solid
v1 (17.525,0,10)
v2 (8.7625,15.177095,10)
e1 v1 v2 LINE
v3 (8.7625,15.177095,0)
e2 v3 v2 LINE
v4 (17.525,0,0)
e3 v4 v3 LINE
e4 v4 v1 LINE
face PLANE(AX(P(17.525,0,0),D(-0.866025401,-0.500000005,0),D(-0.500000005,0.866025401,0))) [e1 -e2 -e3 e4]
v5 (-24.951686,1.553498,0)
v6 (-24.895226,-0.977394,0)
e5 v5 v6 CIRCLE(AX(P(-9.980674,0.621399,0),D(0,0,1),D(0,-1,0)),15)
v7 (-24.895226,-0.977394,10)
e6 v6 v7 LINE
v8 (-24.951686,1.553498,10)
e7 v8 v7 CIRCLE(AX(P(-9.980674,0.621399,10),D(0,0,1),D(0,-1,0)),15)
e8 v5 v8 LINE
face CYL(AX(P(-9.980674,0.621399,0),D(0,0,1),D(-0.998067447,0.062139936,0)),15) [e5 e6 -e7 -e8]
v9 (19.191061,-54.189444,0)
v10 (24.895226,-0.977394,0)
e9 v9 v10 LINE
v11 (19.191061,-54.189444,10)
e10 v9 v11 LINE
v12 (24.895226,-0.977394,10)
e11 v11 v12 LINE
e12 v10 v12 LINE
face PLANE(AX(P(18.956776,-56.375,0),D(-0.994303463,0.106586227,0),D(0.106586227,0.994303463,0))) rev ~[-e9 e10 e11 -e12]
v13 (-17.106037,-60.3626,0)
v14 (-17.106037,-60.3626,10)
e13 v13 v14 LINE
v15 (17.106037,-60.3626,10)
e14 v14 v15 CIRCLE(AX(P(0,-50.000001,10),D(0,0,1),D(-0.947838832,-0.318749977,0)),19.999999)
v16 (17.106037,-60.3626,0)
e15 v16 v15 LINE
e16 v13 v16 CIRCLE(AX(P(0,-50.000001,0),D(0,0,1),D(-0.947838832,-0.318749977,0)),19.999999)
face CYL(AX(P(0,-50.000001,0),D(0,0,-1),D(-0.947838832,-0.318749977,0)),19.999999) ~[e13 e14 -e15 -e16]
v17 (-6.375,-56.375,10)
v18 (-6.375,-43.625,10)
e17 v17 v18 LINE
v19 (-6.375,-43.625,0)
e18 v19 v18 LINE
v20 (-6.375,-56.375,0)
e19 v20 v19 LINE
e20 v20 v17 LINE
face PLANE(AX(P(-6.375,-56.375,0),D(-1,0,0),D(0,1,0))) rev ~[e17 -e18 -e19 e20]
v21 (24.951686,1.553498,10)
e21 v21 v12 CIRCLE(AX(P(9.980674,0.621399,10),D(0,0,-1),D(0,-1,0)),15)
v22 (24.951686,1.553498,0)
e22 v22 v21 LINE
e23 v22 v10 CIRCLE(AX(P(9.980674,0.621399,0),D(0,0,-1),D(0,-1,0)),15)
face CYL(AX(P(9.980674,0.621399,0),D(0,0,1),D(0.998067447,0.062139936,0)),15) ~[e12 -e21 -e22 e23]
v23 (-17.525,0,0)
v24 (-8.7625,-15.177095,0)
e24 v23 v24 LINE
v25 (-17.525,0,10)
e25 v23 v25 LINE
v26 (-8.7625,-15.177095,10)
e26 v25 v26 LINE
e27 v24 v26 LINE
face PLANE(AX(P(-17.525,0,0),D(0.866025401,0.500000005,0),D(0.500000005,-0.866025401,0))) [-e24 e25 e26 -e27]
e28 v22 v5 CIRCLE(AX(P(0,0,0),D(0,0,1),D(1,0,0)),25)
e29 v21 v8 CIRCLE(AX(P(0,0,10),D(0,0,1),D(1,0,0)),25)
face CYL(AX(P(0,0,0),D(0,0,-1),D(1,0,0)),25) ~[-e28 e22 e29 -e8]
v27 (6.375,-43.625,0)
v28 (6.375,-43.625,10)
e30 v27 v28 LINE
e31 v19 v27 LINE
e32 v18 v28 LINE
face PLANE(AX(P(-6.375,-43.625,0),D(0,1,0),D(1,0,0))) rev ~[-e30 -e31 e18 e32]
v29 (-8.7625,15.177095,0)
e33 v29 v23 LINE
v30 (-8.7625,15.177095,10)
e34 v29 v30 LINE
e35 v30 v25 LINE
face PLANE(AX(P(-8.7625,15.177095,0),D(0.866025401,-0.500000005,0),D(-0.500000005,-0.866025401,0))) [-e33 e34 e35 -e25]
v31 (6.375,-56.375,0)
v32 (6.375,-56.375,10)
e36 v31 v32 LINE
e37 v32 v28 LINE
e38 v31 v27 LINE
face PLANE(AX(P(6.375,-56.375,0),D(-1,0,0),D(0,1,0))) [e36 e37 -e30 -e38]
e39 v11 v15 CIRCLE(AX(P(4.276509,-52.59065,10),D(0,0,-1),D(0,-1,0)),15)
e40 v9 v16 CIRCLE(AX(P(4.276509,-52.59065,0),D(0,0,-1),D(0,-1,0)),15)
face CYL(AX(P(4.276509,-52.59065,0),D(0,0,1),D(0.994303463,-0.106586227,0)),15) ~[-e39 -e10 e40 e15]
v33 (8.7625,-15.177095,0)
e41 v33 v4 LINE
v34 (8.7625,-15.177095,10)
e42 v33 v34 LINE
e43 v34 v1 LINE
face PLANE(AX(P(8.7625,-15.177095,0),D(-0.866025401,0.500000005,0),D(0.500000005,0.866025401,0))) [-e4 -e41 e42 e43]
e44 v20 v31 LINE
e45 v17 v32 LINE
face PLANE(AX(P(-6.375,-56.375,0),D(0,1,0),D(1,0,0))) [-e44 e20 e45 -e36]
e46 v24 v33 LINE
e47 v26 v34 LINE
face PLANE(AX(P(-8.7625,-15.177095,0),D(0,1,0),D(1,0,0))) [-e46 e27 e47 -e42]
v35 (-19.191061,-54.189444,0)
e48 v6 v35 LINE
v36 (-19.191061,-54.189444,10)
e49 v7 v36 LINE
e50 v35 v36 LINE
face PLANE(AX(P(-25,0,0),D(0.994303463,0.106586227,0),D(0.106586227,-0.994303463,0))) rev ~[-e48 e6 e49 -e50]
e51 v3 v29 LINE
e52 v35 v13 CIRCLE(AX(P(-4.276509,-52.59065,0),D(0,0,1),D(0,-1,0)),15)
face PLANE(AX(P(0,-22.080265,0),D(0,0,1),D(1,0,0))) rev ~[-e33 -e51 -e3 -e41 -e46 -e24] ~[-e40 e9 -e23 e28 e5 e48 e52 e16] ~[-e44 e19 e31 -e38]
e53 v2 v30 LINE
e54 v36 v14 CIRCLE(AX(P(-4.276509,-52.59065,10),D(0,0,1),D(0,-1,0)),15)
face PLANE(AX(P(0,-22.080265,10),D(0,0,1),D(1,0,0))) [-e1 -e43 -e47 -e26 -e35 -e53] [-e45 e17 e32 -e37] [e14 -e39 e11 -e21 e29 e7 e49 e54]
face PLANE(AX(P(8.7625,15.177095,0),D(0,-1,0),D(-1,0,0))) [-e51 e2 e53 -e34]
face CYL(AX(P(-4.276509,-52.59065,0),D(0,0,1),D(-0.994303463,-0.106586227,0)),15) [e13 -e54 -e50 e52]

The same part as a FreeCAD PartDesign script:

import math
import FreeCAD as App
import Part
import Sketcher
from FreeCAD import Vector
Q = App.Units.Quantity


def edges_at(feature, points):
    """Names of the edges that pass closest to the given points."""
    edges = feature.Shape.Edges
    near = lambda p: min(range(len(edges)), key=lambda i: edges[i].distToShape(Part.Vertex(*p))[0])
    return sorted({f"Edge{near(p) + 1}" for p in points})

doc = App.newDocument("Part")
body = doc.addObject("PartDesign::Body", "Body")

# Sketch on XY plane
sketch1 = body.newObject("Sketcher::SketchObject", "Sketch")
sketch1.AttachmentSupport = (doc.getObject("XY_Plane"), [""])
sketch1.MapMode = "FlatFace"
sketch1.addGeometry([
    Part.ArcOfCircle(Part.Circle(Vector(0, 0, 0), Vector(0, 0, 1), 25), math.radians(0), math.radians(180)),  # 0
    Part.LineSegment(Vector(-25, 0, 0), Vector(-18.956776, -56.375, 0)),  # 1
    Part.ArcOfCircle(Part.Circle(Vector(0, -50.000001, 0), Vector(0, 0, 1), 19.999999), math.radians(-161.412654), math.radians(-18.587346)),  # 2
    Part.LineSegment(Vector(18.956776, -56.375, 0), Vector(25, 0, 0)),  # 3
    Part.LineSegment(Vector(6.375, -56.375, 0), Vector(-6.375, -56.375, 0)),  # 4
    Part.LineSegment(Vector(-6.375, -56.375, 0), Vector(-6.375, -43.625, 0)),  # 5
    Part.LineSegment(Vector(-6.375, -43.625, 0), Vector(6.375, -43.625, 0)),  # 6
    Part.LineSegment(Vector(6.375, -43.625, 0), Vector(6.375, -56.375, 0)),  # 7
    Part.LineSegment(Vector(-8.7625, -15.177095, 0), Vector(-17.525, 0, 0)),  # 8
    Part.LineSegment(Vector(-17.525, 0, 0), Vector(-8.7625, 15.177095, 0)),  # 9
    Part.LineSegment(Vector(-8.7625, 15.177095, 0), Vector(8.7625, 15.177095, 0)),  # 10
    Part.LineSegment(Vector(8.7625, 15.177095, 0), Vector(17.525, 0, 0)),  # 11
    Part.LineSegment(Vector(17.525, 0, 0), Vector(8.7625, -15.177095, 0)),  # 12
    Part.LineSegment(Vector(8.7625, -15.177095, 0), Vector(-8.7625, -15.177095, 0)),  # 13
], False)
sketch1.addConstraint([
    Sketcher.Constraint("Coincident", 0, 2, 1, 1),
    Sketcher.Constraint("Coincident", 1, 2, 2, 1),
    Sketcher.Constraint("Coincident", 2, 2, 3, 1),
    Sketcher.Constraint("Coincident", 3, 2, 0, 1),
    Sketcher.Constraint("Coincident", 4, 2, 5, 1),
    Sketcher.Constraint("Coincident", 5, 2, 6, 1),
    Sketcher.Constraint("Coincident", 6, 2, 7, 1),
    Sketcher.Constraint("Coincident", 7, 2, 4, 1),
    Sketcher.Constraint("Coincident", 8, 2, 9, 1),
    Sketcher.Constraint("Coincident", 9, 2, 10, 1),
    Sketcher.Constraint("Coincident", 10, 2, 11, 1),
    Sketcher.Constraint("Coincident", 11, 2, 12, 1),
    Sketcher.Constraint("Coincident", 12, 2, 13, 1),
    Sketcher.Constraint("Coincident", 13, 2, 8, 1),
    Sketcher.Constraint("Horizontal", 4),
    Sketcher.Constraint("Vertical", 5),
    Sketcher.Constraint("Horizontal", 6),
    Sketcher.Constraint("Vertical", 7),
    Sketcher.Constraint("Horizontal", 10),
    Sketcher.Constraint("Horizontal", 13),
    Sketcher.Constraint("Coincident", 0, 3, -1, 1),
    Sketcher.Constraint("Symmetric", 8, 2, 11, 2, -1, 1),
    Sketcher.Constraint("Symmetric", 9, 2, 12, 2, -1, 1),
    Sketcher.Constraint("Symmetric", 1, 2, 2, 2, -2),
    Sketcher.Constraint("PointOnObject", 0, 2, -1),
    Sketcher.Constraint("PointOnObject", 3, 2, -1),
    Sketcher.Constraint("PointOnObject", 8, 2, -1),
    Sketcher.Constraint("Parallel", 8, 11),
    Sketcher.Constraint("Horizontal", 2, 2, 4, 2),
    Sketcher.Constraint("Vertical", 10, 2, 12, 2),
    Sketcher.Constraint("Equal", 6, 5),
    Sketcher.Constraint("Radius", 0, Q("25 mm")),
    Sketcher.Constraint("Radius", 2, Q("19.999999 mm")),
    Sketcher.Constraint("Angle", 8, Q("120 deg")),
    Sketcher.Constraint("DistanceY", 2, 3, -1, 1, Q("50.000001 mm")),
    Sketcher.Constraint("DistanceX", 4, 2, 4, 1, Q("12.75 mm")),
    Sketcher.Constraint("DistanceX", 8, 2, 6, 2, Q("23.9 mm")),
    Sketcher.Constraint("DistanceX", 10, 1, 10, 2, Q("17.525 mm")),
    Sketcher.Constraint("DistanceX", 8, 2, 11, 2, Q("35.05 mm")),
    Sketcher.Constraint("DistanceY", 1, 2, -1, 1, Q("56.375 mm")),
])
pad1 = body.newObject("PartDesign::Pad", "Pad")
pad1.Profile = sketch1
pad1.Length = 10
doc.recompute()

fillet = body.newObject("PartDesign::Fillet", "Fillet")
fillet.Base = (pad1, edges_at(pad1, [
    (-25, 0, 5),
    (-18.957, -56.375, 5),
    (18.957, -56.375, 5),
    (25, 0, 5),
]))
fillet.Radius = 15

doc.recompute()
